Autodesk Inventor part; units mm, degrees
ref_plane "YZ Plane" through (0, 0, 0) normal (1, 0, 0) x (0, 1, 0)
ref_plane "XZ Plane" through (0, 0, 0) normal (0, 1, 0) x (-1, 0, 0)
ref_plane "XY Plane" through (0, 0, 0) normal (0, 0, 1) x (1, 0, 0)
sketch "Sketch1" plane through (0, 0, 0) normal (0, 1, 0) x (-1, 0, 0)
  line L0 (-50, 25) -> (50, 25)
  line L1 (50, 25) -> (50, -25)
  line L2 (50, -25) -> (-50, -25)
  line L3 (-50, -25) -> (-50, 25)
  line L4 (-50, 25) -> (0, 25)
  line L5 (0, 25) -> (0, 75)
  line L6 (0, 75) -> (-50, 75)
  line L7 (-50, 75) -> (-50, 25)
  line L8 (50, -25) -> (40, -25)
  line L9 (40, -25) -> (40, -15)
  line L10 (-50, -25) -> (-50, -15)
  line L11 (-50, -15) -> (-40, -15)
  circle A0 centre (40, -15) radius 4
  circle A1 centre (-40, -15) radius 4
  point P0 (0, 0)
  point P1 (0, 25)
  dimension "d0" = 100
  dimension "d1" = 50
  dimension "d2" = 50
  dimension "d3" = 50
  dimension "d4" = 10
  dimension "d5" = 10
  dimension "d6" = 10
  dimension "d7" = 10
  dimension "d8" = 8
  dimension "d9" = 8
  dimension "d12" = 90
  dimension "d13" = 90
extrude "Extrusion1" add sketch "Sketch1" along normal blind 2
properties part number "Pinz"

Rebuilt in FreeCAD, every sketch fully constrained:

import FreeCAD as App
import Part
import Sketcher

V = App.Vector
Q = App.Units.Quantity

doc = App.newDocument("Part")
params = doc.addObject("Spreadsheet::Sheet", "Params")
for row, (alias, value) in enumerate([
    ("sketch1_diameter", "8 mm"),
    ("sketch1_width", "90 mm"),
    ("sketch1_width2", "10 mm"),
    ("pad1_length", "2 mm"),
], start=1):
    params.set(f"A{row}", alias)
    params.set(f"B{row}", "=" + value)
    params.setAlias(f"B{row}", alias)

body = doc.addObject("PartDesign::Body", "Body")

# Sketch on XZ plane
sketch1 = doc.addObject("Sketcher::SketchObject", "Sketch")
body.addObject(sketch1)
sketch1.AttachmentSupport = (doc.XZ_Plane, [""])
sketch1.MapMode = "FlatFace"
sketch1.addGeometry(Part.LineSegment(V(50, 75, 0), V(50, -15, 0)), False)
sketch1.addGeometry(Part.LineSegment(V(50, -15, 0), V(50, -25, 0)), False)
sketch1.addGeometry(Part.LineSegment(V(50, -25, 0), V(-40, -25, 0)), False)
sketch1.addGeometry(Part.LineSegment(V(-40, -25, 0), V(-50, -25, 0)), False)
sketch1.addGeometry(Part.LineSegment(V(-50, -25, 0), V(-50, 25, 0)), False)
sketch1.addGeometry(Part.LineSegment(V(-50, 25, 0), V(0, 25, 0)), False)
sketch1.addGeometry(Part.LineSegment(V(0, 25, 0), V(0, 75, 0)), False)
sketch1.addGeometry(Part.LineSegment(V(0, 75, 0), V(50, 75, 0)), False)
sketch1.addGeometry(Part.Circle(V(40, -15, 0), V(0, 0, 1), 4), False)
sketch1.addGeometry(Part.Circle(V(-40, -15, 0), V(0, 0, 1), 4), False)
sketch1.addConstraint(Sketcher.Constraint("Coincident", 0, 2, 1, 1))
sketch1.addConstraint(Sketcher.Constraint("Coincident", 1, 2, 2, 1))
sketch1.addConstraint(Sketcher.Constraint("Coincident", 2, 2, 3, 1))
sketch1.addConstraint(Sketcher.Constraint("Coincident", 3, 2, 4, 1))
sketch1.addConstraint(Sketcher.Constraint("Coincident", 4, 2, 5, 1))
sketch1.addConstraint(Sketcher.Constraint("Coincident", 5, 2, 6, 1))
sketch1.addConstraint(Sketcher.Constraint("Coincident", 6, 2, 7, 1))
sketch1.addConstraint(Sketcher.Constraint("Coincident", 7, 2, 0, 1))
sketch1.addConstraint(Sketcher.Constraint("Vertical", 0))
sketch1.addConstraint(Sketcher.Constraint("Vertical", 1))
sketch1.addConstraint(Sketcher.Constraint("Horizontal", 2))
sketch1.addConstraint(Sketcher.Constraint("Horizontal", 3))
sketch1.addConstraint(Sketcher.Constraint("Vertical", 4))
sketch1.addConstraint(Sketcher.Constraint("Horizontal", 5))
sketch1.addConstraint(Sketcher.Constraint("Vertical", 6))
sketch1.addConstraint(Sketcher.Constraint("Horizontal", 7))
sketch1.addConstraint(Sketcher.Constraint("Equal", 8, 9))
sketch1.addConstraint(Sketcher.Constraint("Symmetric", 1, 2, 4, 2, -1, 1))
sketch1.addConstraint(Sketcher.Constraint("Symmetric", 8, 3, 9, 3, -2))
sketch1.addConstraint(Sketcher.Constraint("PointOnObject", 5, 2, -2))
sketch1.addConstraint(Sketcher.Constraint("Horizontal", 9, 3, 0, 2))
sketch1.addConstraint(Sketcher.Constraint("Vertical", 9, 3, 2, 2))
sketch1.addConstraint(Sketcher.Constraint("Equal", 2, 0))
sketch1.addConstraint(Sketcher.Constraint("Equal", 3, 1))
sketch1.addConstraint(Sketcher.Constraint("Equal", 7, 4))
sketch1.addConstraint(Sketcher.Constraint("Diameter", 8, Q("8 mm")))
sketch1.addConstraint(Sketcher.Constraint("DistanceX", 2, 2, 2, 1, Q("90 mm")))
sketch1.addConstraint(Sketcher.Constraint("DistanceX", 3, 2, 3, 1, Q("10 mm")))
sketch1.setExpression("Constraints[25]", "Params.sketch1_diameter")
sketch1.setExpression("Constraints[26]", "Params.sketch1_width")
sketch1.setExpression("Constraints[27]", "Params.sketch1_width2")
pad1 = doc.addObject("PartDesign::Pad", "Pad")
body.addObject(pad1)
pad1.Profile = sketch1
pad1.setExpression("Length", "Params.pad1_length")
pad1.Reversed = True

doc.recompute()
